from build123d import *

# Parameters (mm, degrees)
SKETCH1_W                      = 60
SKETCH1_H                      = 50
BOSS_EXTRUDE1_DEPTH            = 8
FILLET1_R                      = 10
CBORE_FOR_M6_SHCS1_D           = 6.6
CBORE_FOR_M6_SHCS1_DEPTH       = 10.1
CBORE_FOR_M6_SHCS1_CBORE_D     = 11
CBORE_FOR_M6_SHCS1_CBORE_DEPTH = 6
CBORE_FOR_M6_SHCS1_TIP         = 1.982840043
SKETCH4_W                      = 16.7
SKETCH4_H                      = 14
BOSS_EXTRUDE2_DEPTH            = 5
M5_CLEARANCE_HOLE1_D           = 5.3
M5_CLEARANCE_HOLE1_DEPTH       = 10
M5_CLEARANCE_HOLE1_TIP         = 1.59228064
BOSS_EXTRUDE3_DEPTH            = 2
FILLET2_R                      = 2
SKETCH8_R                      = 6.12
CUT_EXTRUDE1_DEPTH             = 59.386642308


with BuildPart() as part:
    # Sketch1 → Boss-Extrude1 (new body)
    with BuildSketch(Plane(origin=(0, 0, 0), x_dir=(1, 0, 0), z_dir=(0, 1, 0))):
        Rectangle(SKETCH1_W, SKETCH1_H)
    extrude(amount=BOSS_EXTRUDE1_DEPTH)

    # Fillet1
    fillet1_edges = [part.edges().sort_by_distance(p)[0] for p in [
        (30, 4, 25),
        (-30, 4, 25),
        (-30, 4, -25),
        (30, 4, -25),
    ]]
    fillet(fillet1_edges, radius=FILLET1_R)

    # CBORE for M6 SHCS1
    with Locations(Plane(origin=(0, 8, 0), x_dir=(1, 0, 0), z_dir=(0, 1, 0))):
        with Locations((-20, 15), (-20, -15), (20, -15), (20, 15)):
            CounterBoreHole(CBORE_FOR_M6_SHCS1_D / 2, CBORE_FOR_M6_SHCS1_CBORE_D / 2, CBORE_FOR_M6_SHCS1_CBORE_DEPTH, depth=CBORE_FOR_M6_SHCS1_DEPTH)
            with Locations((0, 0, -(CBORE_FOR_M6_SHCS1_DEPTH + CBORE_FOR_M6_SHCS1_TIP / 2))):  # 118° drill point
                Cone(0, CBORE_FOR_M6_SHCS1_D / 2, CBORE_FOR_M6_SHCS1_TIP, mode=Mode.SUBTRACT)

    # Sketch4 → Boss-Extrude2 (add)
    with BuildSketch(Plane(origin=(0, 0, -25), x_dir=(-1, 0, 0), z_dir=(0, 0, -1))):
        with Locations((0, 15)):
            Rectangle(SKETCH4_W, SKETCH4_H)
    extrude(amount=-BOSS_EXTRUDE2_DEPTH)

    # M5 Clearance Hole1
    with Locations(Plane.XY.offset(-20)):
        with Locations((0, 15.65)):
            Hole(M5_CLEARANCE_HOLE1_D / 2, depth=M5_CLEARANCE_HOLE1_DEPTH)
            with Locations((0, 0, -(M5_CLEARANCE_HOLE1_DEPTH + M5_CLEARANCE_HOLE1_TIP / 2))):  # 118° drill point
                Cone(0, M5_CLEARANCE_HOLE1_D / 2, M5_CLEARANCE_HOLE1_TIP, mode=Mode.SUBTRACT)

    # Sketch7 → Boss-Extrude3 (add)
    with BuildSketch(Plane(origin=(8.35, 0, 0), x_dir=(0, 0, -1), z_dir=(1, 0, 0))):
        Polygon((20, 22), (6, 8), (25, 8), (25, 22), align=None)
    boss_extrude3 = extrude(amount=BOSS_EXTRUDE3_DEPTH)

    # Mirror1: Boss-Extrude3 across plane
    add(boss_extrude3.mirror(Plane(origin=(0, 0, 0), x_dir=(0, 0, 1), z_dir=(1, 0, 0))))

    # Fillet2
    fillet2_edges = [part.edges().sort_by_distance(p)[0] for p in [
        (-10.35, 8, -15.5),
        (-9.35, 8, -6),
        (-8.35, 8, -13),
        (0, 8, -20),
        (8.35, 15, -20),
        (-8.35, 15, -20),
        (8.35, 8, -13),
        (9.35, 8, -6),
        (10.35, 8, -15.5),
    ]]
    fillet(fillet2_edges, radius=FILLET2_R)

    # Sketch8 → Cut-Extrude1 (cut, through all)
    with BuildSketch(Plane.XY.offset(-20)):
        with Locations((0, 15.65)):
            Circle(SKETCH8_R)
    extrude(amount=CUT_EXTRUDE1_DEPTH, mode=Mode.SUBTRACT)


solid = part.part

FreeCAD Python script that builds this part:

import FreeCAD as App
import Part
import Sketcher
from FreeCAD import Vector
Q = App.Units.Quantity


def edges_at(feature, points):
    """Names of the edges that pass closest to the given points."""
    edges = feature.Shape.Edges
    near = lambda p: min(range(len(edges)), key=lambda i: edges[i].distToShape(Part.Vertex(*p))[0])
    return sorted({f"Edge{near(p) + 1}" for p in points})

doc = App.newDocument("Part")
body = doc.addObject("PartDesign::Body", "Body")

# Sketch on XZ plane
sketch1 = body.newObject("Sketcher::SketchObject", "Sketch")
sketch1.AttachmentSupport = (doc.getObject("XZ_Plane"), [""])
sketch1.MapMode = "FlatFace"
sketch1.addGeometry([
    Part.LineSegment(Vector(-30, -25, 0), Vector(-30, 25, 0)),
    Part.LineSegment(Vector(-30, 25, 0), Vector(30, 25, 0)),
    Part.LineSegment(Vector(30, 25, 0), Vector(30, -25, 0)),
    Part.LineSegment(Vector(30, -25, 0), Vector(-30, -25, 0)),
], False)
sketch1.addConstraint([
    Sketcher.Constraint("Coincident", 0, 2, 1, 1),
    Sketcher.Constraint("Coincident", 1, 2, 2, 1),
    Sketcher.Constraint("Coincident", 2, 2, 3, 1),
    Sketcher.Constraint("Coincident", 3, 2, 0, 1),
    Sketcher.Constraint("Vertical", 0),
    Sketcher.Constraint("Horizontal", 1),
    Sketcher.Constraint("Vertical", 2),
    Sketcher.Constraint("Horizontal", 3),
    Sketcher.Constraint("Symmetric", 0, 2, 2, 2, -1, 1),
    Sketcher.Constraint("DistanceX", 1, 1, 1, 2, Q("60 mm")),
    Sketcher.Constraint("DistanceY", 0, 1, 0, 2, Q("50 mm")),
])
pad1 = body.newObject("PartDesign::Pad", "Pad")
pad1.Profile = sketch1
pad1.Length = 8
pad1.Reversed = True
doc.recompute()

fillet = body.newObject("PartDesign::Fillet", "Fillet")
fillet.Base = (pad1, edges_at(pad1, [
    (30, 4, 25),
    (-30, 4, 25),
    (-30, 4, -25),
    (30, 4, -25),
]))
fillet.Radius = 10

# Sketch on XZ plane
sketch2 = body.newObject("Sketcher::SketchObject", "Sketch001")
sketch2.AttachmentSupport = (doc.getObject("XZ_Plane"), [""])
sketch2.MapMode = "FlatFace"
sketch2.AttachmentOffset = App.Placement(Vector(0, 0, -8), App.Rotation())
sketch2.addGeometry([
    Part.Circle(Vector(-20, -15, 0), Vector(0, 0, 1), 3.3),
    Part.Circle(Vector(-20, 15, 0), Vector(0, 0, 1), 3.3),
    Part.Circle(Vector(20, 15, 0), Vector(0, 0, 1), 3.3),
    Part.Circle(Vector(20, -15, 0), Vector(0, 0, 1), 3.3),
], False)
sketch2.addConstraint([
    Sketcher.Constraint("Equal", 0, 1),
    Sketcher.Constraint("Equal", 1, 2),
    Sketcher.Constraint("Equal", 2, 3),
    Sketcher.Constraint("Symmetric", 0, 3, 2, 3, -1, 1),
    Sketcher.Constraint("Symmetric", 1, 3, 3, 3, -1, 1),
    Sketcher.Constraint("Symmetric", 1, 3, 2, 3, -2),
    Sketcher.Constraint("Diameter", 0, Q("6.6 mm")),
    Sketcher.Constraint("DistanceX", 0, 3, -1, 1, Q("20 mm")),
    Sketcher.Constraint("DistanceY", 0, 3, -1, 1, Q("15 mm")),
])
doc.recompute()
hole = body.newObject("PartDesign::Hole", "Hole")
hole.Profile = sketch2
hole.ThreadType = "None"
hole.Diameter = 6.6
hole.DepthType = "Dimension"
hole.Depth = 10.1
hole.DrillPoint = "Angled"
hole.DrillPointAngle = 118
hole.HoleCutType = "Counterbore"
hole.HoleCutDiameter = 11
hole.HoleCutDepth = 6
hole.Reversed = True

# Sketch on XY plane
sketch3 = body.newObject("Sketcher::SketchObject", "Sketch002")
sketch3.AttachmentSupport = (doc.getObject("XY_Plane"), [""])
sketch3.MapMode = "FlatFace"
sketch3.AttachmentOffset = App.Placement(Vector(0, 0, -25), App.Rotation())
sketch3.addGeometry([
    Part.LineSegment(Vector(8.35, 22, 0), Vector(8.35, 8, 0)),
    Part.LineSegment(Vector(8.35, 8, 0), Vector(-8.35, 8, 0)),
    Part.LineSegment(Vector(-8.35, 8, 0), Vector(-8.35, 22, 0)),
    Part.LineSegment(Vector(-8.35, 22, 0), Vector(8.35, 22, 0)),
], False)
sketch3.addConstraint([
    Sketcher.Constraint("Coincident", 0, 2, 1, 1),
    Sketcher.Constraint("Coincident", 1, 2, 2, 1),
    Sketcher.Constraint("Coincident", 2, 2, 3, 1),
    Sketcher.Constraint("Coincident", 3, 2, 0, 1),
    Sketcher.Constraint("Vertical", 0),
    Sketcher.Constraint("Horizontal", 1),
    Sketcher.Constraint("Vertical", 2),
    Sketcher.Constraint("Horizontal", 3),
    Sketcher.Constraint("DistanceY", 0, 2, 0, 1, Q("14 mm")),
    Sketcher.Constraint("DistanceX", 1, 2, 1, 1, Q("16.7 mm")),
    Sketcher.Constraint("DistanceY", -1, 1, 0, 2, Q("8 mm")),
    Sketcher.Constraint("DistanceX", -1, 1, 0, 2, Q("8.35 mm")),
])
pad2 = body.newObject("PartDesign::Pad", "Pad001")
pad2.Profile = sketch3
pad2.Length = 5

# Sketch on XY plane
sketch4 = body.newObject("Sketcher::SketchObject", "Sketch003")
sketch4.AttachmentSupport = (doc.getObject("XY_Plane"), [""])
sketch4.MapMode = "FlatFace"
sketch4.AttachmentOffset = App.Placement(Vector(0, 0, -20), App.Rotation())
sketch4.addGeometry(Part.Circle(Vector(0, 15.65, 0), Vector(0, 0, 1), 2.65), False)
sketch4.addConstraint([
    Sketcher.Constraint("PointOnObject", 0, 3, -2),
    Sketcher.Constraint("Diameter", 0, Q("5.3 mm")),
    Sketcher.Constraint("DistanceY", -1, 1, 0, 3, Q("15.65 mm")),
])
doc.recompute()
hole2 = body.newObject("PartDesign::Hole", "Hole001")
hole2.Profile = sketch4
hole2.ThreadType = "None"
hole2.Diameter = 5.3
hole2.DepthType = "Dimension"
hole2.Depth = 10
hole2.DrillPoint = "Angled"
hole2.DrillPointAngle = 118

# Sketch on YZ plane
sketch5 = body.newObject("Sketcher::SketchObject", "Sketch004")
sketch5.AttachmentSupport = (doc.getObject("YZ_Plane"), [""])
sketch5.MapMode = "FlatFace"
sketch5.AttachmentOffset = App.Placement(Vector(0, 0, 8.35), App.Rotation())
sketch5.addGeometry([
    Part.LineSegment(Vector(22, -20, 0), Vector(8, -6, 0)),
    Part.LineSegment(Vector(8, -6, 0), Vector(8, -25, 0)),
    Part.LineSegment(Vector(8, -25, 0), Vector(22, -25, 0)),
    Part.LineSegment(Vector(22, -25, 0), Vector(22, -20, 0)),
], False)
sketch5.addConstraint([
    Sketcher.Constraint("Coincident", 0, 2, 1, 1),
    Sketcher.Constraint("Coincident", 1, 2, 2, 1),
    Sketcher.Constraint("Coincident", 2, 2, 3, 1),
    Sketcher.Constraint("Coincident", 3, 2, 0, 1),
    Sketcher.Constraint("Vertical", 1),
    Sketcher.Constraint("Horizontal", 2),
    Sketcher.Constraint("Vertical", 3),
    Sketcher.Constraint("DistanceX", 2, 1, 2, 2, Q("14 mm")),
    Sketcher.Constraint("DistanceY", 1, 2, 1, 1, Q("19 mm")),
    Sketcher.Constraint("DistanceY", 3, 1, 3, 2, Q("5 mm")),
    Sketcher.Constraint("DistanceX", -1, 1, 0, 2, Q("8 mm")),
    Sketcher.Constraint("DistanceY", 0, 2, -1, 1, Q("6 mm")),
])
pad3 = body.newObject("PartDesign::Pad", "Pad002")
pad3.Profile = sketch5
pad3.Length = 2
doc.recompute()

mirrored = body.newObject("PartDesign::Mirrored", "Mirrored")
mirrored.Originals = [pad3]
mirrored.MirrorPlane = (doc.getObject("YZ_Plane"), [""])
body.Tip = mirrored
doc.recompute()

fillet2 = body.newObject("PartDesign::Fillet", "Fillet001")
fillet2.Base = (mirrored, edges_at(mirrored, [
    (-10.35, 8, -15.5),
    (-9.35, 8, -6),
    (-8.35, 8, -13),
    (0, 8, -20),
    (8.35, 15, -20),
    (-8.35, 15, -20),
    (8.35, 8, -13),
    (9.35, 8, -6),
    (10.35, 8, -15.5),
]))
fillet2.Radius = 2

# Sketch on XY plane
sketch6 = body.newObject("Sketcher::SketchObject", "Sketch005")
sketch6.AttachmentSupport = (doc.getObject("XY_Plane"), [""])
sketch6.MapMode = "FlatFace"
sketch6.AttachmentOffset = App.Placement(Vector(0, 0, -20), App.Rotation())
sketch6.addGeometry(Part.Circle(Vector(0, 15.65, 0), Vector(0, 0, 1), 6.12), False)
sketch6.addConstraint([
    Sketcher.Constraint("PointOnObject", 0, 3, -2),
    Sketcher.Constraint("Diameter", 0, Q("12.24 mm")),
    Sketcher.Constraint("DistanceY", -1, 1, 0, 3, Q("15.65 mm")),
])
pocket1 = body.newObject("PartDesign::Pocket", "Pocket")
pocket1.Profile = sketch6
pocket1.Type = "ThroughAll"
pocket1.Reversed = True

doc.recompute()
